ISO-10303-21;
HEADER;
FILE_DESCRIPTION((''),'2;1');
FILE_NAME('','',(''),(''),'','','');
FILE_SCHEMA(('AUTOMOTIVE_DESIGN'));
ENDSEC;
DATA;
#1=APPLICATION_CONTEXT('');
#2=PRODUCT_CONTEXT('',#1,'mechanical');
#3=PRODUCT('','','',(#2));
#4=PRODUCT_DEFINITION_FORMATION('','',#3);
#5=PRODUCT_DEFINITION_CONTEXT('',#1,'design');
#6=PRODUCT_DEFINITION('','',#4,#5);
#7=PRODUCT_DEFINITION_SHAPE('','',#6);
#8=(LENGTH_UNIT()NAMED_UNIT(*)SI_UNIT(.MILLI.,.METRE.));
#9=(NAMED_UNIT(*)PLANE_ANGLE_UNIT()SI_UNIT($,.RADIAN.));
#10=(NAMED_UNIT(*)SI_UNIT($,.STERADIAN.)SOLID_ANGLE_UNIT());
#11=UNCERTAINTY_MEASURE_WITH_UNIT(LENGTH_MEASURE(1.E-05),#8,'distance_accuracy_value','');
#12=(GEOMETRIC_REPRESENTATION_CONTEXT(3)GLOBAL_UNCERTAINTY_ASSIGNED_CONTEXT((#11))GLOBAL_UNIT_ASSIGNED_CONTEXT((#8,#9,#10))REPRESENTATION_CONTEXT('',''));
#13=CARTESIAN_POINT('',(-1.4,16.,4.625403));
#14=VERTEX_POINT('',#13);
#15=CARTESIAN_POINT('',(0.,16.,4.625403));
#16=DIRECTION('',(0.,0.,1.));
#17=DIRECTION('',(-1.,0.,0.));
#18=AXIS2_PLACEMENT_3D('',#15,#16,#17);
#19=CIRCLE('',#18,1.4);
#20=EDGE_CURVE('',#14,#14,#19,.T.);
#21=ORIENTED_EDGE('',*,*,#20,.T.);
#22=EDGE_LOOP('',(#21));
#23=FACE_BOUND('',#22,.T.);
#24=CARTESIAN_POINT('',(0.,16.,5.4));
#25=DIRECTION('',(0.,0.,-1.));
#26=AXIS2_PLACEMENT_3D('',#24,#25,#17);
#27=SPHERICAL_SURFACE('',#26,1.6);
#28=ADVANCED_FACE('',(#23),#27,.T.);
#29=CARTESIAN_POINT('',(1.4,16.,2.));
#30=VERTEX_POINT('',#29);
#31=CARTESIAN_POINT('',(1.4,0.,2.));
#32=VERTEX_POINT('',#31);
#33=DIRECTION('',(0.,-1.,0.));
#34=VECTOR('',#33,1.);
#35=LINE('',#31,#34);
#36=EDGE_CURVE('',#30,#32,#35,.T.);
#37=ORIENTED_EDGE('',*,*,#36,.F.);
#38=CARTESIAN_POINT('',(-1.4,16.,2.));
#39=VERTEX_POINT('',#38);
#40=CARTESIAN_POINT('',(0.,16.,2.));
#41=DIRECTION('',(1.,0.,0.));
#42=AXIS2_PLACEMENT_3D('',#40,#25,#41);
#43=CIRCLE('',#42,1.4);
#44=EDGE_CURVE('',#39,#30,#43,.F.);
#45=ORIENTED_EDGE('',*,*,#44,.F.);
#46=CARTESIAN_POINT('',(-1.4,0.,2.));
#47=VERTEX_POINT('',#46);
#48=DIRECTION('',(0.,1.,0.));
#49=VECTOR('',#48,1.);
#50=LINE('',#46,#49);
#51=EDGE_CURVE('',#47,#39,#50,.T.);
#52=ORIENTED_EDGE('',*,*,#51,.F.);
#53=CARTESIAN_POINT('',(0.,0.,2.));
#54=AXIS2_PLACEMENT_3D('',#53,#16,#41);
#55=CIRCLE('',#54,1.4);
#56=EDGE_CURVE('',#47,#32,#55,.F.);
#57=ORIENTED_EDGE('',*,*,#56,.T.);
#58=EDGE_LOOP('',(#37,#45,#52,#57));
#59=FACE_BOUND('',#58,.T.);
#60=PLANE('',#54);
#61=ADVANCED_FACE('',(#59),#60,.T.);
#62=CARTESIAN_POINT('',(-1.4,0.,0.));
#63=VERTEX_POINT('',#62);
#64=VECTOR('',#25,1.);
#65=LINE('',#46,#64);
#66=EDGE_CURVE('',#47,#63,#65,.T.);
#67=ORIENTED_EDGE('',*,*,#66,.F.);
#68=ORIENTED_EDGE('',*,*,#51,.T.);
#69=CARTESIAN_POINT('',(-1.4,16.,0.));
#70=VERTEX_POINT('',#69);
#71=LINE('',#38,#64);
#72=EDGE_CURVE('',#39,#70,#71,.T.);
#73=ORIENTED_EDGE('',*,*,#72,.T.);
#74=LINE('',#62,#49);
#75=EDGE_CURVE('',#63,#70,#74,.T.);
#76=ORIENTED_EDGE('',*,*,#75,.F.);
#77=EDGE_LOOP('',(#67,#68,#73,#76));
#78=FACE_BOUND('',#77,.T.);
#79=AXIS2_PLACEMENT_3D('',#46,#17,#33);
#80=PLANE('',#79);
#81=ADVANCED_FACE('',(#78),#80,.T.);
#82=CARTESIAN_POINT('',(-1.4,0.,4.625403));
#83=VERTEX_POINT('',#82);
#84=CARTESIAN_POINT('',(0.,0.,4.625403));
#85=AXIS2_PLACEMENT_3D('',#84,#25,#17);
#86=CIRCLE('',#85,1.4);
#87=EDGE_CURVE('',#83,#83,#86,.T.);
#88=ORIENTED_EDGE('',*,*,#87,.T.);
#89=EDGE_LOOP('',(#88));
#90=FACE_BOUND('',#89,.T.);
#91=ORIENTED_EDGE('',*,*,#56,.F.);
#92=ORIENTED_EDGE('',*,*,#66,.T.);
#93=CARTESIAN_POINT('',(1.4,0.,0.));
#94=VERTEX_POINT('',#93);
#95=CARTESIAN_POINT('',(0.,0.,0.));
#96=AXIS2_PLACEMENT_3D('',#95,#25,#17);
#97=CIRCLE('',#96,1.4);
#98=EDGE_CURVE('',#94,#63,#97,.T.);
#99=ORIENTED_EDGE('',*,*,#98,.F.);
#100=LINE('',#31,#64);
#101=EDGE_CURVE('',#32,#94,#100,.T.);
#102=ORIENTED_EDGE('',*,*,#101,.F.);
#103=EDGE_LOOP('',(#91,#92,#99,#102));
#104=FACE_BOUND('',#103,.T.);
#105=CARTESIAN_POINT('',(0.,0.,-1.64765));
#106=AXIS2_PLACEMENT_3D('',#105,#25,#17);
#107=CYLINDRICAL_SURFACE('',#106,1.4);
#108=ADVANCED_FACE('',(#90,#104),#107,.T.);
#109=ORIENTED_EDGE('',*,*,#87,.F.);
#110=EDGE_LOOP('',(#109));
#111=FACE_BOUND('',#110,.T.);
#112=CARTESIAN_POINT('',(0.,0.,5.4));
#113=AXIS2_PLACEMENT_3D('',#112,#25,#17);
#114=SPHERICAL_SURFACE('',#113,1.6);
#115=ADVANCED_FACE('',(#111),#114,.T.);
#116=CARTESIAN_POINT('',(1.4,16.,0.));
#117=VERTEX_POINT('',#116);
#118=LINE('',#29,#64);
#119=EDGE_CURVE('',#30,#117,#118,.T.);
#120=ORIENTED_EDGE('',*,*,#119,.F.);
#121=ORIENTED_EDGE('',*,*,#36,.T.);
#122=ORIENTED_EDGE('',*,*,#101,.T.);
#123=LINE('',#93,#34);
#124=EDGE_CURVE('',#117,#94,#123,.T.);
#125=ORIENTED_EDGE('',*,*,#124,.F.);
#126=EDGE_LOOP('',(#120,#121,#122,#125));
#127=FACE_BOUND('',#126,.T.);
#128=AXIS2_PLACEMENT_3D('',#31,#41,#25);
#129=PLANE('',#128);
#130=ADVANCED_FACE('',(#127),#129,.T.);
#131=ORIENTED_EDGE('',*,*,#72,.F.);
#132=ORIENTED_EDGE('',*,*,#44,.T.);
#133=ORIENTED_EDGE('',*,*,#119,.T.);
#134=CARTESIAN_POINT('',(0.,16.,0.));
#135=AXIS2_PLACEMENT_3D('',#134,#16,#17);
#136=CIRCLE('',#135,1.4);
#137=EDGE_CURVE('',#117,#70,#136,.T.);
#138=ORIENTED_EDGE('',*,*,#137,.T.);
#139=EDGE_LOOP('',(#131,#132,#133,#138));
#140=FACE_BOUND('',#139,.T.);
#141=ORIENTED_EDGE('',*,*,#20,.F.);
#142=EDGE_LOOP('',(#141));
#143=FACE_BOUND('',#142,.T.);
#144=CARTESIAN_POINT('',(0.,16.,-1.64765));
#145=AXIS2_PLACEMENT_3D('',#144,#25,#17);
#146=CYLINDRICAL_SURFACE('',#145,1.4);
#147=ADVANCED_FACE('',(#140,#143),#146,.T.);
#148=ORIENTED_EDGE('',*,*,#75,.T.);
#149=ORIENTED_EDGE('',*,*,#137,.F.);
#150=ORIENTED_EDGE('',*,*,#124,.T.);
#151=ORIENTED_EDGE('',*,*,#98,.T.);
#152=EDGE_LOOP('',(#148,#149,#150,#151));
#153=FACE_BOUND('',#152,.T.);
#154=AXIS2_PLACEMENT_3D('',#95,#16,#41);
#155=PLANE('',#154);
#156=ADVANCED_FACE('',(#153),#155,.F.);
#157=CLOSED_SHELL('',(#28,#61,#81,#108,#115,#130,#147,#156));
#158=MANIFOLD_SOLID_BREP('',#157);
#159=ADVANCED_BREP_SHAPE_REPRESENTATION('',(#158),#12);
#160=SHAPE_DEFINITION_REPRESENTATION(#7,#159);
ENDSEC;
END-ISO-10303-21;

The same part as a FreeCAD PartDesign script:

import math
import FreeCAD as App
import Part
import Sketcher

V = App.Vector


def add_polygon(sketch, points):
    """Adds a closed chain of lines whose ends are joined by coincident constraints."""
    first, n = sketch.GeometryCount, len(points)
    for a, b in zip(points, points[1:] + points[:1]):
        sketch.addGeometry(Part.LineSegment(App.Vector(*a, 0), App.Vector(*b, 0)), False)
    for i in range(n):
        sketch.addConstraint(Sketcher.Constraint("Coincident", first + i, 2, first + (i + 1) % n, 1))

doc = App.newDocument("Part")
body = doc.addObject("PartDesign::Body", "Body")

# Sketch on XZ plane
sketch1 = body.newObject("Sketcher::SketchObject", "Sketch")
sketch1.AttachmentSupport = (doc.getObject("XZ_Plane"), [""])
sketch1.MapMode = "FlatFace"
sketch1.addGeometry([
    Part.LineSegment(V(0, 0, 0), V(-1.4, 0, 0)),  # 0
    Part.LineSegment(V(-1.4, 0, 0), V(-1.4, 4.6, 0)),  # 1
    Part.ArcOfCircle(Part.Circle(V(0, 5.4, 0), V(0, 0, 1), 1.6), math.radians(151), math.radians(209)),  # 2
    Part.ArcOfCircle(Part.Circle(V(0, 5.4, 0), V(0, 0, 1), 1.6), math.radians(90), math.radians(151)),  # 3
    Part.LineSegment(V(0, 7, 0), V(0, 0, 0)),  # 4
], False)
sketch1.addConstraint([
    Sketcher.Constraint("Coincident", 0, 2, 1, 1),
    Sketcher.Constraint("Coincident", 1, 2, 2, 2),
    Sketcher.Constraint("Tangent", 2, 1, 3, 2),
    Sketcher.Constraint("Coincident", 3, 1, 4, 1),
    Sketcher.Constraint("Coincident", 4, 2, 0, 1),
    Sketcher.Constraint("Horizontal", 0),
    Sketcher.Constraint("Vertical", 1),
    Sketcher.Constraint("Vertical", 4),
    Sketcher.Constraint("Coincident", 4, 2, -1, 1),
    Sketcher.Constraint("Equal", 2, 3),
    Sketcher.Constraint("PointOnObject", 2, 3, -2),
    Sketcher.Constraint("Vertical", 1, 2, 2, 1),
    Sketcher.Constraint("Radius", 2, 1.6),
    Sketcher.Constraint("DistanceY", 4, 2, 4, 1, 7.0),
    Sketcher.Constraint("DistanceX", 0, 2, 0, 1, 1.4),
])
revolution = body.newObject("PartDesign::Revolution", "Revolution")
revolution.Profile = sketch1
revolution.ReferenceAxis = (sketch1, ["V_Axis"])
revolution.Angle = 360

# Sketch on XY plane
sketch2 = body.newObject("Sketcher::SketchObject", "Sketch001")
sketch2.AttachmentSupport = (doc.getObject("XY_Plane"), [""])
sketch2.MapMode = "FlatFace"
add_polygon(sketch2, [(1.4, 8), (1.4, 0), (-1.4, 0), (-1.4, 8)])  # lines 0-3
sketch2.addConstraint([
    Sketcher.Constraint("Vertical", 0),
    Sketcher.Constraint("Horizontal", 1),
    Sketcher.Constraint("Vertical", 2),
    Sketcher.Constraint("Horizontal", 3),
    Sketcher.Constraint("Symmetric", 0, 2, 1, 2, -1, 1),
    Sketcher.Constraint("DistanceY", 0, 2, 0, 1, 8.0),
    Sketcher.Constraint("DistanceX", 1, 2, 1, 1, 2.8),
])
pad1 = body.newObject("PartDesign::Pad", "Pad")
pad1.Profile = sketch2
pad1.Length = 2
body2 = doc.addObject("PartDesign::Body", "Body001")
doc.recompute()

body2.BaseFeature = body
doc.recompute()

mirroring = doc.addObject("Part::Mirroring", "Mirroring")
mirroring.Source = body
mirroring.Base = V(1.4, 8, 2)
mirroring.Normal = V(0, 1, 0)
body3 = doc.addObject("PartDesign::Body", "Body002")
body3.BaseFeature = mirroring
boolean = body2.newObject("PartDesign::Boolean", "Boolean")
boolean.Type = "Fuse"
boolean.addObjects([body3])
doc.recompute()
mirroring.Visibility = False

doc.recompute()
